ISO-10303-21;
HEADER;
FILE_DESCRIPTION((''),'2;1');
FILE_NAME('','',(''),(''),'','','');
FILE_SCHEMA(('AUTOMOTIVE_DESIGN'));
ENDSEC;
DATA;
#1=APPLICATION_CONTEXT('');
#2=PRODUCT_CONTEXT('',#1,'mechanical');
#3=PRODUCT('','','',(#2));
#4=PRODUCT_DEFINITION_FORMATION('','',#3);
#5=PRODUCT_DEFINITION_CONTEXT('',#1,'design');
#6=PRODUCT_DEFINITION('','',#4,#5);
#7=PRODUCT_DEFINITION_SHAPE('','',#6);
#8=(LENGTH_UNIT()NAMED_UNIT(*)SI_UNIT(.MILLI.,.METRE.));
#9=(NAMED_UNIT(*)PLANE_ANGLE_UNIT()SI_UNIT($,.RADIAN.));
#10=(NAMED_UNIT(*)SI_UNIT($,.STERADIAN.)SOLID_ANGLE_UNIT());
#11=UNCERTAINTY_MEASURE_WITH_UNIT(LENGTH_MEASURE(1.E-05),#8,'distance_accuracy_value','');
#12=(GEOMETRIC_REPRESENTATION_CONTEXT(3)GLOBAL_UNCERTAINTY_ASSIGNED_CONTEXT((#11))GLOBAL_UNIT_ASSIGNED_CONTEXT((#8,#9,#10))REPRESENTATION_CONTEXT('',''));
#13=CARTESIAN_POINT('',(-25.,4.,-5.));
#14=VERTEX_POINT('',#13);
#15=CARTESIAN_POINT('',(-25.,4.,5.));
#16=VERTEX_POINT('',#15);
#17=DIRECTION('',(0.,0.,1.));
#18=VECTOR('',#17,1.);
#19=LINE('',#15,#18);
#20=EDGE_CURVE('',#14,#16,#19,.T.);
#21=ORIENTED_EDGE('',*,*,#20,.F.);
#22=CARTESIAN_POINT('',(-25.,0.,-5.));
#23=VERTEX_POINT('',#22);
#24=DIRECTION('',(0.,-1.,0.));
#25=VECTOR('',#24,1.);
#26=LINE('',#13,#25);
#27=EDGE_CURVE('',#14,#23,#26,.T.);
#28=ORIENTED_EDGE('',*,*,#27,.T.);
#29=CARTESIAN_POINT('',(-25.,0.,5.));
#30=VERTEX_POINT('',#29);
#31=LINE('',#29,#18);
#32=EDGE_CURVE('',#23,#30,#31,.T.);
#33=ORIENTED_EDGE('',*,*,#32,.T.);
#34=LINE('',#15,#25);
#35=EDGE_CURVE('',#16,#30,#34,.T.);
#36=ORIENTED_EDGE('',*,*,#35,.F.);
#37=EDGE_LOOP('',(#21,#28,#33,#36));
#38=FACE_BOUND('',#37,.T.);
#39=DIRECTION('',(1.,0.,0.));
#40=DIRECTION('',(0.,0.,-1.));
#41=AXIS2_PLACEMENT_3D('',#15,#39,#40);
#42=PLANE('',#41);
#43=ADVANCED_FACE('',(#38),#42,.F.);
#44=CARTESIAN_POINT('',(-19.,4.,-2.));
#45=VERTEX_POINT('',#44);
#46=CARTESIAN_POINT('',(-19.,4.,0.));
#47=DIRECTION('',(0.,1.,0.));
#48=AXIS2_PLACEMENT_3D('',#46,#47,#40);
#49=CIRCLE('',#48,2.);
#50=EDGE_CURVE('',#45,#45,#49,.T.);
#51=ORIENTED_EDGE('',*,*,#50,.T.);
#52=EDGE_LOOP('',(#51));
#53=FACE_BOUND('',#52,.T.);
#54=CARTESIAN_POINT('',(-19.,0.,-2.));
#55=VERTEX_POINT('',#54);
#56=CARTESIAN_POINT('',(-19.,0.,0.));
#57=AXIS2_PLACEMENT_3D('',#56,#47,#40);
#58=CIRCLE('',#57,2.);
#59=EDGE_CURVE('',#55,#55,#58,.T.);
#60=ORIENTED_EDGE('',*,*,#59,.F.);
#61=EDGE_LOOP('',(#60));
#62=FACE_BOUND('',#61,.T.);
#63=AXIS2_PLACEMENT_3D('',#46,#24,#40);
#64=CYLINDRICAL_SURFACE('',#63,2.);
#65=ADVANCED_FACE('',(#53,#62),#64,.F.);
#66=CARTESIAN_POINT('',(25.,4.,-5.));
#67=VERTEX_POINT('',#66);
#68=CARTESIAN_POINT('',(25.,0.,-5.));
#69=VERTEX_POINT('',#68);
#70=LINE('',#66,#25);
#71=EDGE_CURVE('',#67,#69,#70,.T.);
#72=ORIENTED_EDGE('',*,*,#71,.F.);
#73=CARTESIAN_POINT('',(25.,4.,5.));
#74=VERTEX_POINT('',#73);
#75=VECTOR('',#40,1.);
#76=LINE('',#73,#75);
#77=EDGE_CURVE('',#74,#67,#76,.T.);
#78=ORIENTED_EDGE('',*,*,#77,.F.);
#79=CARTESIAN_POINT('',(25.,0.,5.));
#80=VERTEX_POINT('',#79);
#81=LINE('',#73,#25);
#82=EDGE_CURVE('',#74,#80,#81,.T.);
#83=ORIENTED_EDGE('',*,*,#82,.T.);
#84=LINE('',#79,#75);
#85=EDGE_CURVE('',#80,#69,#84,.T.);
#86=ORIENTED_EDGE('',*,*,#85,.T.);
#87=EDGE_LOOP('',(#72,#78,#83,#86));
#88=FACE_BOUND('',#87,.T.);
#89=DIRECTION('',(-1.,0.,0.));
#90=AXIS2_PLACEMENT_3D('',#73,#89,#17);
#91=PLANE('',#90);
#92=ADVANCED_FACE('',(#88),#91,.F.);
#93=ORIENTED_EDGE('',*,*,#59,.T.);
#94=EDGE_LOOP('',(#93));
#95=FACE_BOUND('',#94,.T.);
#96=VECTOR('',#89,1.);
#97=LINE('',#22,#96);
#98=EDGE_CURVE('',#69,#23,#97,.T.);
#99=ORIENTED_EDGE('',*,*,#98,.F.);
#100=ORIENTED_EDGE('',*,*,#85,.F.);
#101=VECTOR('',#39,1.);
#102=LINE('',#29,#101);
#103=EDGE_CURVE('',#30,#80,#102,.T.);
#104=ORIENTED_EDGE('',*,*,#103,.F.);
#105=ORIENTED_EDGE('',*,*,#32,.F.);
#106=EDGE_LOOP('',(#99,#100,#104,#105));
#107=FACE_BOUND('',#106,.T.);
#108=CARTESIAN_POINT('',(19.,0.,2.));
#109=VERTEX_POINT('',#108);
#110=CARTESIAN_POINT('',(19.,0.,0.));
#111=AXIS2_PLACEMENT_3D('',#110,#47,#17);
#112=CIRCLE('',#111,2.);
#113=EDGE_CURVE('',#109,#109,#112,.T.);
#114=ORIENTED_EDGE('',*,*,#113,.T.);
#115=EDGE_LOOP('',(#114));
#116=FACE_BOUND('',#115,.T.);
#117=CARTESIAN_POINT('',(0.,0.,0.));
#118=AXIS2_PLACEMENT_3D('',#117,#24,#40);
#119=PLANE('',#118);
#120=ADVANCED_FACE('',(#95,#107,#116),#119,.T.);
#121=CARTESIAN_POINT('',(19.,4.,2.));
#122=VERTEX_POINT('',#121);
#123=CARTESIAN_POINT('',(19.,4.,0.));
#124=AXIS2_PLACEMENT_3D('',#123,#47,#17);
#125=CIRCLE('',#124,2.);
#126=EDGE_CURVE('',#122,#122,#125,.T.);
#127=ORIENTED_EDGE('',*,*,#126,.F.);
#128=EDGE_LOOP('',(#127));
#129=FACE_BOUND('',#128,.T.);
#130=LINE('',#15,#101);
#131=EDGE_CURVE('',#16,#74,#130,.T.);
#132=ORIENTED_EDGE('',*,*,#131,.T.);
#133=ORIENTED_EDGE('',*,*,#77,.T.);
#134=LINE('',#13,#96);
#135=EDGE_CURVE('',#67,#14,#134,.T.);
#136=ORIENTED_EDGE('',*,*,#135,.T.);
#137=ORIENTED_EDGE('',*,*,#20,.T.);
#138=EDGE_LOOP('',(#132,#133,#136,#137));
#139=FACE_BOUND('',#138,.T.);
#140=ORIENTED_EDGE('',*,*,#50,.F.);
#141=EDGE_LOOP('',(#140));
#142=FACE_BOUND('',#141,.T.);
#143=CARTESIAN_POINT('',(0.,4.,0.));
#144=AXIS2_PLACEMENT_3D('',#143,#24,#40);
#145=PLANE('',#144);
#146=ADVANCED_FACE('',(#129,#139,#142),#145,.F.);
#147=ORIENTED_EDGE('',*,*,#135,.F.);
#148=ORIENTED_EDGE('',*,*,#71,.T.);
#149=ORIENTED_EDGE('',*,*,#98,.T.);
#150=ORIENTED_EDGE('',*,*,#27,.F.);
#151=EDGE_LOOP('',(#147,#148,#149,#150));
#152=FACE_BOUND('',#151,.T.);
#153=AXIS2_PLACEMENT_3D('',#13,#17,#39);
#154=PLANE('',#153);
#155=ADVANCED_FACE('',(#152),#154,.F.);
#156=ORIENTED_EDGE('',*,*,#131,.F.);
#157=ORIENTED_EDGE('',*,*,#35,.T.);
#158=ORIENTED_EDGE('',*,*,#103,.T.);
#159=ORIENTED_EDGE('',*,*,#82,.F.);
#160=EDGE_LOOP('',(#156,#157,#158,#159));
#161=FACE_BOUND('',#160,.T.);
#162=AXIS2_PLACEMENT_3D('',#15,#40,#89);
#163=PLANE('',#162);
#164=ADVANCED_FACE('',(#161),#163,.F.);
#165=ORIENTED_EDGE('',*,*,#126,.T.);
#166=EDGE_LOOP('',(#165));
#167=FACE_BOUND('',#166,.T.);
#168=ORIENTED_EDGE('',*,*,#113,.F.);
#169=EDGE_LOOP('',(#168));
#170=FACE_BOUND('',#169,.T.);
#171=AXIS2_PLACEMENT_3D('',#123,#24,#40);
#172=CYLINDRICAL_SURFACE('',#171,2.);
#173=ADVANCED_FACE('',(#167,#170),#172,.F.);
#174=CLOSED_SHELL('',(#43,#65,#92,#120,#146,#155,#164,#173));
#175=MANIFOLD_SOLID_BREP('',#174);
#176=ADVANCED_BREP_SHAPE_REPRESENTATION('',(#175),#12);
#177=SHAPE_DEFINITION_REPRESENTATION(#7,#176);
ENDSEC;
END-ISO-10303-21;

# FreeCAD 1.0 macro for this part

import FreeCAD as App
import Part
import Sketcher

V = App.Vector
Q = App.Units.Quantity


def add_polygon(sketch, points):
    """Adds a closed chain of lines whose ends are joined by coincident constraints."""
    first, n = sketch.GeometryCount, len(points)
    for a, b in zip(points, points[1:] + points[:1]):
        sketch.addGeometry(Part.LineSegment(App.Vector(*a, 0), App.Vector(*b, 0)), False)
    for i in range(n):
        sketch.addConstraint(Sketcher.Constraint("Coincident", first + i, 2, first + (i + 1) % n, 1))

doc = App.newDocument("Part")
body = doc.addObject("PartDesign::Body", "Body")

sketch1 = body.newObject("Sketcher::SketchObject", "Sketch")
sketch1.AttachmentSupport = (doc.getObject("XZ_Plane"), [""])
sketch1.MapMode = "FlatFace"
add_polygon(sketch1, [(-25, -5), (-25, 5), (25, 5), (25, -5)])
sketch1.addGeometry(Part.Circle(V(-19, 0, 0), V(0, 0, 1), 2), False)
sketch1.addGeometry(Part.Circle(V(19, 0, 0), V(0, 0, 1), 2), False)
sketch1.addConstraint([
    Sketcher.Constraint("Vertical", 0),
    Sketcher.Constraint("Horizontal", 1),
    Sketcher.Constraint("Vertical", 2),
    Sketcher.Constraint("Horizontal", 3),
    Sketcher.Constraint("Equal", 4, 5),
    Sketcher.Constraint("Symmetric", 4, 3, 5, 3, -1, 1),
    Sketcher.Constraint("Symmetric", 0, 2, 2, 2, -1, 1),
    Sketcher.Constraint("PointOnObject", 4, 3, -1),
    Sketcher.Constraint("Diameter", 4, Q("4 mm")),
    Sketcher.Constraint("DistanceX", 1, 1, 1, 2, Q("50 mm")),
    Sketcher.Constraint("DistanceY", 0, 1, 0, 2, Q("10 mm")),
    Sketcher.Constraint("DistanceX", 4, 3, -1, 1, Q("19 mm")),
])
pad1 = body.newObject("PartDesign::Pad", "Pad")
pad1.Profile = sketch1
pad1.Length = 4
pad1.Reversed = True

doc.recompute()
